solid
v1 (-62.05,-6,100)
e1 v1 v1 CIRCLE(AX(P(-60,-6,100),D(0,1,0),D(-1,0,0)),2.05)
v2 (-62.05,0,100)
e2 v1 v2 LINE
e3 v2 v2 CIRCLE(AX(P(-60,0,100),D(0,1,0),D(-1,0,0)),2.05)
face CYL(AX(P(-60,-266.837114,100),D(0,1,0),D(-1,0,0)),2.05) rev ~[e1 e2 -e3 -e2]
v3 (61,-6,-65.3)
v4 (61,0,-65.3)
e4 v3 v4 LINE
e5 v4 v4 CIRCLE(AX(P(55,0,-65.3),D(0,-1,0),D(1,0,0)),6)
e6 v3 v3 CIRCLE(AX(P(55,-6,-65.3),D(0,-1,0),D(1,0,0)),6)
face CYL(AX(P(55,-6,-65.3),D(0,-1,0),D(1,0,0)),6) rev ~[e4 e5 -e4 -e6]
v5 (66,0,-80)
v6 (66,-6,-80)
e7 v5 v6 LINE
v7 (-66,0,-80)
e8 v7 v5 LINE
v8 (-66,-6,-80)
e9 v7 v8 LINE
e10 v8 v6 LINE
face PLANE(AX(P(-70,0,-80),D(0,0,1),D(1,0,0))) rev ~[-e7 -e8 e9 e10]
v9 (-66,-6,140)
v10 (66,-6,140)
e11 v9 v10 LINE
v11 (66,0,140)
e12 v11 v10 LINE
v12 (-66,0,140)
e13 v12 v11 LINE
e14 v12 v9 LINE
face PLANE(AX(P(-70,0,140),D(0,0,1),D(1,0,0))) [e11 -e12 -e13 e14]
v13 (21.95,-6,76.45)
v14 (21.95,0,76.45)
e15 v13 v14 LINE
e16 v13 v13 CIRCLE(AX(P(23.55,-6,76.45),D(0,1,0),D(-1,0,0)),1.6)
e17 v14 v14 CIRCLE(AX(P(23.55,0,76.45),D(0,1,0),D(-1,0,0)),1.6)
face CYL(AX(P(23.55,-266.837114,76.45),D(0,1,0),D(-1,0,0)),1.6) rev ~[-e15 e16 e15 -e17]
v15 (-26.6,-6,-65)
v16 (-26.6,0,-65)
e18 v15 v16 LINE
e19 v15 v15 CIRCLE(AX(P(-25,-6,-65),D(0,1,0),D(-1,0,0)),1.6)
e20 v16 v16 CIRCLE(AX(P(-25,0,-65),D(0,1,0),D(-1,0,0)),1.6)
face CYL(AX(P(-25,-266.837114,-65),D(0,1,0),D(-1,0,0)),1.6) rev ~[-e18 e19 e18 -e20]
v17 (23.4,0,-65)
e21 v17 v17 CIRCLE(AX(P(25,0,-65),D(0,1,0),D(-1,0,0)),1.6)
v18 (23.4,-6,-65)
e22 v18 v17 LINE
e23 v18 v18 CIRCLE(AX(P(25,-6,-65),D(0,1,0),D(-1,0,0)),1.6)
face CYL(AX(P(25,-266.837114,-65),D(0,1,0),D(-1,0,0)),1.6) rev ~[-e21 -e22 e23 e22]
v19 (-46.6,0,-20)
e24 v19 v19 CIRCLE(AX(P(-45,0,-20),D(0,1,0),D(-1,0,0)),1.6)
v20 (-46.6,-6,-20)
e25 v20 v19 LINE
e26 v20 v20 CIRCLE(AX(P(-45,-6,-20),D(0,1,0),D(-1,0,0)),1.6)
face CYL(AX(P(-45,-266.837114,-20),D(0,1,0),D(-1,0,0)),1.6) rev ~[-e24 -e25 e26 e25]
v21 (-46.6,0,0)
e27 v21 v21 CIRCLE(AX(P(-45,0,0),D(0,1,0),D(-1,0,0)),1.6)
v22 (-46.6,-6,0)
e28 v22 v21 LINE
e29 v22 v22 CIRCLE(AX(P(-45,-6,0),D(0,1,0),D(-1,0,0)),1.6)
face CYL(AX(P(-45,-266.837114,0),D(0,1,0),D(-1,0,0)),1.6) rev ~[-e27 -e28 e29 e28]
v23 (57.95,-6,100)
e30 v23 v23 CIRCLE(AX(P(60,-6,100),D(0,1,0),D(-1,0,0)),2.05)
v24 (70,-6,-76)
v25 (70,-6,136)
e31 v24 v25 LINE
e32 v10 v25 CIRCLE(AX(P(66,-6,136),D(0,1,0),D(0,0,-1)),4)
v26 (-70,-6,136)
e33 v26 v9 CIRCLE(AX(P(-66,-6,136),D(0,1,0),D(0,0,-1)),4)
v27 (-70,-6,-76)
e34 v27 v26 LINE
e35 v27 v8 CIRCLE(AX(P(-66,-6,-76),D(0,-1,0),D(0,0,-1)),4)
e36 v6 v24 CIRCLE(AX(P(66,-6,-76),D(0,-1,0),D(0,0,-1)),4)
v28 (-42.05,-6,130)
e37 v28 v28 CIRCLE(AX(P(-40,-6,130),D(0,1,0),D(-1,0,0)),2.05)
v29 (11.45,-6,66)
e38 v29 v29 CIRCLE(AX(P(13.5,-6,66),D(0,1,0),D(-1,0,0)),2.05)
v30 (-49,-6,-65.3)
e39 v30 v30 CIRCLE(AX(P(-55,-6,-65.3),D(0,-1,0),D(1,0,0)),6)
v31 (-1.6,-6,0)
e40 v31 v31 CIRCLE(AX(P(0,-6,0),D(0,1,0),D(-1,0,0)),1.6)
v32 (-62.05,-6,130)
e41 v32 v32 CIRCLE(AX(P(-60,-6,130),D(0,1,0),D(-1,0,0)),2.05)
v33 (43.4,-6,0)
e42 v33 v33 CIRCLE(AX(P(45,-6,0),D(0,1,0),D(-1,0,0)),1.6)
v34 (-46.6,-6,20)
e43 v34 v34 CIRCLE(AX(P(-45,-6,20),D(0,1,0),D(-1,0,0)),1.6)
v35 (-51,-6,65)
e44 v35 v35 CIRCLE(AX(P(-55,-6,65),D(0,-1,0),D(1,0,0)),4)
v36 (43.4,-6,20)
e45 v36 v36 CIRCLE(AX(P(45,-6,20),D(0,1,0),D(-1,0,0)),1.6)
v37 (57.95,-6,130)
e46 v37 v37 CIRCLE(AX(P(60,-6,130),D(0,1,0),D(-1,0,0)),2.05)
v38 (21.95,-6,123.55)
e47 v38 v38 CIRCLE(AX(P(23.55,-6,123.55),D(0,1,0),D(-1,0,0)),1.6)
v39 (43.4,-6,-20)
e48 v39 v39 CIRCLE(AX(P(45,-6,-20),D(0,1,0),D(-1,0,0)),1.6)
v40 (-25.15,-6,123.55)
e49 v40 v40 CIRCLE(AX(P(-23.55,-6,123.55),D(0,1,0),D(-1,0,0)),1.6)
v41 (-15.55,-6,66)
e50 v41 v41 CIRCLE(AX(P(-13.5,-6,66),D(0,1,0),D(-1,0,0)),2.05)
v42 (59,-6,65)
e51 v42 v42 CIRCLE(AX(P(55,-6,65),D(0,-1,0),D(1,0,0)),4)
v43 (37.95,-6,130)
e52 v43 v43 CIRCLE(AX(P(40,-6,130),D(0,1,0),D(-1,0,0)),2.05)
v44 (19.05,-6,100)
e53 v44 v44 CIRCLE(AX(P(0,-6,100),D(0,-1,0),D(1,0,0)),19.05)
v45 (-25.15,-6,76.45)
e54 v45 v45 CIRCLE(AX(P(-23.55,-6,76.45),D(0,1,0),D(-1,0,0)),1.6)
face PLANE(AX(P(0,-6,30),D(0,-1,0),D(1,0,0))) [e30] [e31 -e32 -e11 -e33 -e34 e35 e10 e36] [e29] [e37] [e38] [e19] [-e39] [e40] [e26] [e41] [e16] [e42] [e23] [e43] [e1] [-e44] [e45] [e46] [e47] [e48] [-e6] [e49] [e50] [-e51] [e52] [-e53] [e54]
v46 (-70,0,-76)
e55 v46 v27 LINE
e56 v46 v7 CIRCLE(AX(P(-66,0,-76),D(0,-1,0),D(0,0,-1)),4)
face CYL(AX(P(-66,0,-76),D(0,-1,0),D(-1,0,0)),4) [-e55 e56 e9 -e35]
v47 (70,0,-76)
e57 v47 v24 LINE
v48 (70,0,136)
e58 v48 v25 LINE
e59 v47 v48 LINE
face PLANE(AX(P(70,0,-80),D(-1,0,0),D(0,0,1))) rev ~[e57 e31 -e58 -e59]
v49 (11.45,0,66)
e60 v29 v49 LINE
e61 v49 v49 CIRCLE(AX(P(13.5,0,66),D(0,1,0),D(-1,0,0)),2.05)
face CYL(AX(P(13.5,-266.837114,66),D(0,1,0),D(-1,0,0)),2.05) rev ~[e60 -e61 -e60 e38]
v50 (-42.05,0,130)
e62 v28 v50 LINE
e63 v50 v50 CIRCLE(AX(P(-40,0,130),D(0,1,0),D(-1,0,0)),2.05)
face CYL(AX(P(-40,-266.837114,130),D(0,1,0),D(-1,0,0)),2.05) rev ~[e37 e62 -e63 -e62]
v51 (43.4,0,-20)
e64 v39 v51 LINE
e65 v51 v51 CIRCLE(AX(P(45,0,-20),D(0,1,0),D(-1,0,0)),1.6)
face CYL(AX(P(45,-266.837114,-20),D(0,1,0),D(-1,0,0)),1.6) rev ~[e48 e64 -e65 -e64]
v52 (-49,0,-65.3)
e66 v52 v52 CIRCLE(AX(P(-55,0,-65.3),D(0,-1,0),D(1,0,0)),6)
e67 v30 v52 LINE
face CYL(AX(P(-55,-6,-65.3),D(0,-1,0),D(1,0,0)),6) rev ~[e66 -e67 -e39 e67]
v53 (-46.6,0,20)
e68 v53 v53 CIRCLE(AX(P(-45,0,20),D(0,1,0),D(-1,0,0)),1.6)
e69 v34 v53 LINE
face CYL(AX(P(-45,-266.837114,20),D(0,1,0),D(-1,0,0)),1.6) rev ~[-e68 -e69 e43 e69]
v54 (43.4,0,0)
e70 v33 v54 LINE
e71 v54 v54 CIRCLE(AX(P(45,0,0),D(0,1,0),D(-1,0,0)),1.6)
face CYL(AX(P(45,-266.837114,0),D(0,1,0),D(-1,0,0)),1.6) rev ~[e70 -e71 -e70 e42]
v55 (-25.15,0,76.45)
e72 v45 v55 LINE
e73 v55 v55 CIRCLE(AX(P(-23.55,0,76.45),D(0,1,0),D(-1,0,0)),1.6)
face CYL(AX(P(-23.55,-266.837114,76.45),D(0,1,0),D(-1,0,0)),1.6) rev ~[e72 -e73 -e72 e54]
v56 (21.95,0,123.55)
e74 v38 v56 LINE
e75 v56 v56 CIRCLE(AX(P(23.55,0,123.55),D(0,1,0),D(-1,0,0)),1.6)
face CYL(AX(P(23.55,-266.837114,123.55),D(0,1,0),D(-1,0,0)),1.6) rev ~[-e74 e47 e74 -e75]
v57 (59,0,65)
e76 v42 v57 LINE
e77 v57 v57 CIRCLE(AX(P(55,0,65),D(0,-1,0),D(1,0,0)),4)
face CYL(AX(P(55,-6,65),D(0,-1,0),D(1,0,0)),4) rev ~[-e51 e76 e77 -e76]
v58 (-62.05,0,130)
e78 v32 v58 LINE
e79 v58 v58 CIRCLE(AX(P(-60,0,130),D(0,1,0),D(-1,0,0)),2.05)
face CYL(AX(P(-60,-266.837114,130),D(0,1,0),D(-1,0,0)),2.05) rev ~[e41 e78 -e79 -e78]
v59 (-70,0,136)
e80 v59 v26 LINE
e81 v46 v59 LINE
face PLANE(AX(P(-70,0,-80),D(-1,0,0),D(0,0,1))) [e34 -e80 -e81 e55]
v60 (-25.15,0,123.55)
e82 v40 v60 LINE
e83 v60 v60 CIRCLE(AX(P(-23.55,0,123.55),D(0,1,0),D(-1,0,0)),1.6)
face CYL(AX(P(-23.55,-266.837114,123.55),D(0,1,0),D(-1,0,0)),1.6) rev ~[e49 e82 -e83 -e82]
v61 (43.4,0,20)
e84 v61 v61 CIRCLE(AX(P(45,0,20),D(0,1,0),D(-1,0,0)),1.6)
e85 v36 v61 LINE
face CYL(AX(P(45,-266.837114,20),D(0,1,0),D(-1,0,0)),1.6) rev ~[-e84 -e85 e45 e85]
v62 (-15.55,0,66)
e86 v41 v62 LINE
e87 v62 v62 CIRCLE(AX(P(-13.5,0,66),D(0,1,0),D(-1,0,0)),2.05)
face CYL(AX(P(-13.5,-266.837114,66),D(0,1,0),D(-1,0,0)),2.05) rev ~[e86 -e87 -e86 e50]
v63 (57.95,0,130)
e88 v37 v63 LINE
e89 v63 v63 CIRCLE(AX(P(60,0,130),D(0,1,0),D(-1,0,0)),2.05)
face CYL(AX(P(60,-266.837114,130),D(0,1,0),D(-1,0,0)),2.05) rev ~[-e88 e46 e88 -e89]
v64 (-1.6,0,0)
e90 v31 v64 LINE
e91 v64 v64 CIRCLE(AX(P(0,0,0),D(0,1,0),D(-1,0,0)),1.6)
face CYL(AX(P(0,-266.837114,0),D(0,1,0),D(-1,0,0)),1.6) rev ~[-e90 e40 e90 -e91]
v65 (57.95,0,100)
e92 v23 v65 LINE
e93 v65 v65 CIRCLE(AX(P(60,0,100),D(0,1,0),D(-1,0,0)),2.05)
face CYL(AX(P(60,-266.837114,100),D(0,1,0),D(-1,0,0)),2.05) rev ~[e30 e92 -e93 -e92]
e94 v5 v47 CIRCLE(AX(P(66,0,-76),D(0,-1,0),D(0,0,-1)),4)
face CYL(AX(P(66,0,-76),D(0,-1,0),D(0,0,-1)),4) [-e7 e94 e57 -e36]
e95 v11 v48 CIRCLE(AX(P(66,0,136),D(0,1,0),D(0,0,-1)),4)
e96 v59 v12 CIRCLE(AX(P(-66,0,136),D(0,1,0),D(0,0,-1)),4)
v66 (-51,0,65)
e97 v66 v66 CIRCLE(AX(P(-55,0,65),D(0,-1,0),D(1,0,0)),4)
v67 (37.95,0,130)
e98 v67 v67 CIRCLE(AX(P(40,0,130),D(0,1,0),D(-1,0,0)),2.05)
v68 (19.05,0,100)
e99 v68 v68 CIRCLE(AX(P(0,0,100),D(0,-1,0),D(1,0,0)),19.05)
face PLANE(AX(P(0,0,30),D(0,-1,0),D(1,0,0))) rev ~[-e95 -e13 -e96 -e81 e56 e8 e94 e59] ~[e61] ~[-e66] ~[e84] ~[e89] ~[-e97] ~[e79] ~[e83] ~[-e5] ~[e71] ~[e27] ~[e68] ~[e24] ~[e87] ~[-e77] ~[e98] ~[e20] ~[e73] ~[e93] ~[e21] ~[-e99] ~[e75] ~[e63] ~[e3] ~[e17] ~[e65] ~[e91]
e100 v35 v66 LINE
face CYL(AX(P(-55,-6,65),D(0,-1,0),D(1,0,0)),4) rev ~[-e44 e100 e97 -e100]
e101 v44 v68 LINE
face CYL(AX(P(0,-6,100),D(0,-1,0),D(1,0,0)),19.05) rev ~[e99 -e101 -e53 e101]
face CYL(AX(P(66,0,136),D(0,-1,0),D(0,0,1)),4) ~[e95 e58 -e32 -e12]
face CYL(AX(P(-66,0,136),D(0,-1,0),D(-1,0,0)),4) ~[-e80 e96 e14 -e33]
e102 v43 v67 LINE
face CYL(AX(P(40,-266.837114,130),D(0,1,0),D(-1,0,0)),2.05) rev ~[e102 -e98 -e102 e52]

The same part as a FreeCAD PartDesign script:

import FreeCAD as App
import Part
import Sketcher


def edges_at(feature, points):
    """Names of the edges that pass closest to the given points."""
    edges = feature.Shape.Edges
    near = lambda p: min(range(len(edges)), key=lambda i: edges[i].distToShape(Part.Vertex(*p))[0])
    return sorted({f"Edge{near(p) + 1}" for p in points})


def add_polygon(sketch, points):
    """Adds a closed chain of lines whose ends are joined by coincident constraints."""
    first, n = sketch.GeometryCount, len(points)
    for a, b in zip(points, points[1:] + points[:1]):
        sketch.addGeometry(Part.LineSegment(App.Vector(*a, 0), App.Vector(*b, 0)), False)
    for i in range(n):
        sketch.addConstraint(Sketcher.Constraint("Coincident", first + i, 2, first + (i + 1) % n, 1))

doc = App.newDocument("Part")
body = doc.addObject("PartDesign::Body", "Body")

# Sketch on XZ plane
sketch1 = body.newObject("Sketcher::SketchObject", "Sketch")
sketch1.AttachmentSupport = (doc.getObject("XZ_Plane"), [""])
sketch1.MapMode = "FlatFace"
add_polygon(sketch1, [(-70, 140), (-70, -80), (70, -80), (70, 140)])  # lines 0-3
sketch1.addConstraint([
    Sketcher.Constraint("Vertical", 0),
    Sketcher.Constraint("Horizontal", 1),
    Sketcher.Constraint("Vertical", 2),
    Sketcher.Constraint("Horizontal", 3),
    Sketcher.Constraint("DistanceX", 1, 1, 1, 2, 140.0),
    Sketcher.Constraint("DistanceY", 0, 2, 0, 1, 220.0),
    Sketcher.Constraint("DistanceX", 0, 2, -1, 1, 70.0),
    Sketcher.Constraint("DistanceY", 0, 2, -1, 1, 80.0),
])
pad1 = body.newObject("PartDesign::Pad", "Pad")
pad1.Profile = sketch1
pad1.Length = 6

# Sketch on XZ plane
sketch2 = body.newObject("Sketcher::SketchObject", "Sketch001")
sketch2.AttachmentSupport = (doc.getObject("XZ_Plane"), [""])
sketch2.MapMode = "FlatFace"
sketch2.AttachmentOffset = App.Placement(App.Vector(0, 0, 6), App.Rotation())
sketch2.addGeometry([
    Part.Circle(App.Vector(-13.5, 66, 0), App.Vector(0, 0, 1), 2),
    Part.Circle(App.Vector(13.5, 66, 0), App.Vector(0, 0, 1), 2),
], False)
sketch2.addConstraint([
    Sketcher.Constraint("Equal", 0, 1),
    Sketcher.Constraint("Symmetric", 0, 3, 1, 3, -2),
    Sketcher.Constraint("Diameter", 0, 4.1),
    Sketcher.Constraint("DistanceY", -1, 1, 0, 3, 66.0),
    Sketcher.Constraint("DistanceX", 0, 3, 1, 3, 27.0),
])
doc.recompute()
hole = body.newObject("PartDesign::Hole", "Hole")
hole.Profile = sketch2
hole.ThreadType = "None"
hole.Diameter = 4.1
hole.DepthType = "ThroughAll"

# Sketch on XZ plane
sketch3 = body.newObject("Sketcher::SketchObject", "Sketch002")
sketch3.AttachmentSupport = (doc.getObject("XZ_Plane"), [""])
sketch3.MapMode = "FlatFace"
sketch3.AttachmentOffset = App.Placement(App.Vector(0, 0, 6), App.Rotation())
sketch3.addGeometry([
    Part.Circle(App.Vector(-23.6, 123.5, 0), App.Vector(0, 0, 1), 1.6),
    Part.Circle(App.Vector(23.6, 123.5, 0), App.Vector(0, 0, 1), 1.6),
    Part.Circle(App.Vector(23.6, 76.5, 0), App.Vector(0, 0, 1), 1.6),
    Part.Circle(App.Vector(-23.6, 76.5, 0), App.Vector(0, 0, 1), 1.6),
], False)
sketch3.addConstraint([
    Sketcher.Constraint("Equal", 0, 1),
    Sketcher.Constraint("Equal", 1, 2),
    Sketcher.Constraint("Equal", 2, 3),
    Sketcher.Constraint("Symmetric", 0, 3, 1, 3, -2),
    Sketcher.Constraint("Symmetric", 2, 3, 3, 3, -2),
    Sketcher.Constraint("Vertical", 1, 3, 2, 3),
    Sketcher.Constraint("Diameter", 0, 3.2),
    Sketcher.Constraint("DistanceX", 0, 3, 1, 3, 47.1),
    Sketcher.Constraint("DistanceY", 2, 3, 1, 3, 47.1),
    Sketcher.Constraint("DistanceY", -1, 1, 0, 3, 123.55),
])
doc.recompute()
hole2 = body.newObject("PartDesign::Hole", "Hole001")
hole2.Profile = sketch3
hole2.ThreadType = "None"
hole2.Diameter = 3.2
hole2.DepthType = "ThroughAll"

# Sketch on XZ plane
sketch4 = body.newObject("Sketcher::SketchObject", "Sketch003")
sketch4.AttachmentSupport = (doc.getObject("XZ_Plane"), [""])
sketch4.MapMode = "FlatFace"
sketch4.AttachmentOffset = App.Placement(App.Vector(0, 0, 6), App.Rotation())
sketch4.addGeometry([
    Part.Circle(App.Vector(0, 100, 0), App.Vector(0, 0, 1), 19.1),  # 0
    Part.Circle(App.Vector(-55, 65, 0), App.Vector(0, 0, 1), 4),  # 1
    Part.Circle(App.Vector(55, 65, 0), App.Vector(0, 0, 1), 4),  # 2
    Part.Circle(App.Vector(-55, -65.3, 0), App.Vector(0, 0, 1), 6),  # 3
    Part.Circle(App.Vector(55, -65.3, 0), App.Vector(0, 0, 1), 6),  # 4
], False)
sketch4.addConstraint([
    Sketcher.Constraint("Equal", 1, 2),
    Sketcher.Constraint("Equal", 3, 4),
    Sketcher.Constraint("Symmetric", 1, 3, 2, 3, -2),
    Sketcher.Constraint("Symmetric", 3, 3, 4, 3, -2),
    Sketcher.Constraint("PointOnObject", 0, 3, -2),
    Sketcher.Constraint("Vertical", 1, 3, 3, 3),
    Sketcher.Constraint("Diameter", 1, 8.0),
    Sketcher.Constraint("Diameter", 3, 12.0),
    Sketcher.Constraint("Diameter", 0, 38.1),
    Sketcher.Constraint("DistanceY", -1, 1, 0, 3, 100.0),
    Sketcher.Constraint("DistanceX", 1, 3, -1, 1, 55.0),
    Sketcher.Constraint("DistanceY", -1, 1, 1, 3, 65.0),
    Sketcher.Constraint("DistanceY", 3, 3, -1, 1, 65.3),
])
pocket1 = body.newObject("PartDesign::Pocket", "Pocket")
pocket1.Profile = sketch4
pocket1.Type = "ThroughAll"
doc.recompute()

fillet = body.newObject("PartDesign::Fillet", "Fillet")
fillet.Base = (pocket1, edges_at(pocket1, [
    (70, -3, 140),
    (-70, -3, 140),
    (-70, -3, -80),
    (70, -3, -80),
]))
fillet.Radius = 4

# Sketch on XZ plane
sketch5 = body.newObject("Sketcher::SketchObject", "Sketch004")
sketch5.AttachmentSupport = (doc.getObject("XZ_Plane"), [""])
sketch5.MapMode = "FlatFace"
sketch5.AttachmentOffset = App.Placement(App.Vector(0, 0, 6), App.Rotation())
sketch5.addGeometry([
    Part.Circle(App.Vector(-45, 20, 0), App.Vector(0, 0, 1), 1.6),  # 0
    Part.Circle(App.Vector(-45, 0, 0), App.Vector(0, 0, 1), 1.6),  # 1
    Part.Circle(App.Vector(-45, -20, 0), App.Vector(0, 0, 1), 1.6),  # 2
    Part.Circle(App.Vector(-25, -65, 0), App.Vector(0, 0, 1), 1.6),  # 3
    Part.Circle(App.Vector(25, -65, 0), App.Vector(0, 0, 1), 1.6),  # 4
    Part.Circle(App.Vector(45, -20, 0), App.Vector(0, 0, 1), 1.6),  # 5
    Part.Circle(App.Vector(45, 0, 0), App.Vector(0, 0, 1), 1.6),  # 6
    Part.Circle(App.Vector(45, 20, 0), App.Vector(0, 0, 1), 1.6),  # 7
    Part.Circle(App.Vector(0, 0, 0), App.Vector(0, 0, 1), 1.6),  # 8
], False)
sketch5.addConstraint([
    Sketcher.Constraint("Coincident", 8, 3, -1, 1),
    Sketcher.Constraint("Equal", 0, 1),
    Sketcher.Constraint("Equal", 1, 2),
    Sketcher.Constraint("Equal", 2, 3),
    Sketcher.Constraint("Equal", 3, 4),
    Sketcher.Constraint("Equal", 4, 5),
    Sketcher.Constraint("Equal", 5, 6),
    Sketcher.Constraint("Equal", 6, 7),
    Sketcher.Constraint("Equal", 7, 8),
    Sketcher.Constraint("Symmetric", 0, 3, 5, 3, -1, 1),
    Sketcher.Constraint("Symmetric", 1, 3, 6, 3, -1, 1),
    Sketcher.Constraint("Symmetric", 2, 3, 7, 3, -1, 1),
    Sketcher.Constraint("Symmetric", 3, 3, 4, 3, -2),
    Sketcher.Constraint("Symmetric", 2, 3, 5, 3, -2),
    Sketcher.Constraint("PointOnObject", 1, 3, -1),
    Sketcher.Constraint("Vertical", 0, 3, 1, 3),
    Sketcher.Constraint("Diameter", 0, 3.2),
    Sketcher.Constraint("DistanceX", 0, 3, -1, 1, 45.0),
    Sketcher.Constraint("DistanceY", -1, 1, 0, 3, 20.0),
    Sketcher.Constraint("DistanceX", 3, 3, -1, 1, 25.0),
    Sketcher.Constraint("DistanceY", 3, 3, -1, 1, 65.0),
])
doc.recompute()
hole3 = body.newObject("PartDesign::Hole", "Hole002")
hole3.Profile = sketch5
hole3.ThreadType = "None"
hole3.Diameter = 3.2
hole3.DepthType = "ThroughAll"

# Sketch on XZ plane
sketch6 = body.newObject("Sketcher::SketchObject", "Sketch005")
sketch6.AttachmentSupport = (doc.getObject("XZ_Plane"), [""])
sketch6.MapMode = "FlatFace"
sketch6.AttachmentOffset = App.Placement(App.Vector(0, 0, 6), App.Rotation())
sketch6.addGeometry([
    Part.Circle(App.Vector(-60, 130, 0), App.Vector(0, 0, 1), 2),  # 0
    Part.Circle(App.Vector(-60, 100, 0), App.Vector(0, 0, 1), 2),  # 1
    Part.Circle(App.Vector(60, 130, 0), App.Vector(0, 0, 1), 2),  # 2
    Part.Circle(App.Vector(60, 100, 0), App.Vector(0, 0, 1), 2),  # 3
    Part.Circle(App.Vector(-40, 130, 0), App.Vector(0, 0, 1), 2),  # 4
    Part.Circle(App.Vector(40, 130, 0), App.Vector(0, 0, 1), 2),  # 5
], False)
sketch6.addConstraint([
    Sketcher.Constraint("Equal", 0, 1),
    Sketcher.Constraint("Equal", 1, 2),
    Sketcher.Constraint("Equal", 2, 3),
    Sketcher.Constraint("Equal", 3, 4),
    Sketcher.Constraint("Equal", 4, 5),
    Sketcher.Constraint("Symmetric", 0, 3, 2, 3, -2),
    Sketcher.Constraint("Symmetric", 1, 3, 3, 3, -2),
    Sketcher.Constraint("Symmetric", 4, 3, 5, 3, -2),
    Sketcher.Constraint("Horizontal", 2, 3, 4, 3),
    Sketcher.Constraint("Vertical", 0, 3, 1, 3),
    Sketcher.Constraint("Diameter", 0, 4.1),
    Sketcher.Constraint("DistanceX", 0, 3, -1, 1, 60.0),
    Sketcher.Constraint("DistanceY", -1, 1, 0, 3, 130.0),
    Sketcher.Constraint("DistanceY", -1, 1, 1, 3, 100.0),
    Sketcher.Constraint("DistanceX", 4, 3, -1, 1, 40.0),
])
doc.recompute()
hole4 = body.newObject("PartDesign::Hole", "Hole003")
hole4.Profile = sketch6
hole4.ThreadType = "None"
hole4.Diameter = 4.1
hole4.DepthType = "ThroughAll"

doc.recompute()
